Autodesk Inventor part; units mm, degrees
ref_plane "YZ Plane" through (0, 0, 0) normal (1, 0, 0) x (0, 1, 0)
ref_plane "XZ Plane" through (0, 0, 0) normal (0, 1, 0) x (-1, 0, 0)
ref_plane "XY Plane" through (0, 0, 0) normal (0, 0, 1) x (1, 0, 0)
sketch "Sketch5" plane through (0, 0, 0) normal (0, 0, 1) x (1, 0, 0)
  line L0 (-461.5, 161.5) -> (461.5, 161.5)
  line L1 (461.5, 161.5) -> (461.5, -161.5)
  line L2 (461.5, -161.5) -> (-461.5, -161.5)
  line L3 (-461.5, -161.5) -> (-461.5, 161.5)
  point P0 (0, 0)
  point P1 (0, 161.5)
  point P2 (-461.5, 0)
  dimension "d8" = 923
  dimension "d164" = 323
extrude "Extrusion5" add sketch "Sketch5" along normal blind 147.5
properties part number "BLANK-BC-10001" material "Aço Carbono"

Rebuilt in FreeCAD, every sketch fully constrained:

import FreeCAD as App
import Part
import Sketcher
from FreeCAD import Vector

doc = App.newDocument("Part")
params = doc.addObject("Spreadsheet::Sheet", "Params")
for row, (alias, value) in enumerate([
    ("sketch1_width", "923 mm"),
    ("sketch1_height", "323 mm"),
    ("pad1_length", "147.5 mm"),
], start=1):
    params.set(f"A{row}", alias)
    params.set(f"B{row}", "=" + value)
    params.setAlias(f"B{row}", alias)

body = doc.addObject("PartDesign::Body", "Body")

# Sketch on XY plane
sketch1 = doc.addObject("Sketcher::SketchObject", "Sketch")
body.addObject(sketch1)
sketch1.AttachmentSupport = (doc.XY_Plane, [""])
sketch1.MapMode = "FlatFace"
sketch1.addGeometry(Part.LineSegment(Vector(462, 162, 0), Vector(-462, 162, 0)), False)
sketch1.addGeometry(Part.LineSegment(Vector(-462, 162, 0), Vector(-462, -162, 0)), False)
sketch1.addGeometry(Part.LineSegment(Vector(-462, -162, 0), Vector(462, -162, 0)), False)
sketch1.addGeometry(Part.LineSegment(Vector(462, -162, 0), Vector(462, 162, 0)), False)
sketch1.addConstraint(Sketcher.Constraint("Coincident", 0, 2, 1, 1))
sketch1.addConstraint(Sketcher.Constraint("Coincident", 1, 2, 2, 1))
sketch1.addConstraint(Sketcher.Constraint("Coincident", 2, 2, 3, 1))
sketch1.addConstraint(Sketcher.Constraint("Coincident", 3, 2, 0, 1))
sketch1.addConstraint(Sketcher.Constraint("Horizontal", 0))
sketch1.addConstraint(Sketcher.Constraint("Vertical", 1))
sketch1.addConstraint(Sketcher.Constraint("Horizontal", 2))
sketch1.addConstraint(Sketcher.Constraint("Vertical", 3))
sketch1.addConstraint(Sketcher.Constraint("Symmetric", 0, 2, 2, 2, -1, 1))
sketch1.addConstraint(Sketcher.Constraint("DistanceX", 0, 2, 0, 1, 923.0))
sketch1.addConstraint(Sketcher.Constraint("DistanceY", 1, 2, 1, 1, 323.0))
sketch1.setExpression("Constraints[9]", "Params.sketch1_width")
sketch1.setExpression("Constraints[10]", "Params.sketch1_height")
pad1 = doc.addObject("PartDesign::Pad", "Pad")
body.addObject(pad1)
pad1.Profile = sketch1
pad1.setExpression("Length", "Params.pad1_length")

doc.recompute()
